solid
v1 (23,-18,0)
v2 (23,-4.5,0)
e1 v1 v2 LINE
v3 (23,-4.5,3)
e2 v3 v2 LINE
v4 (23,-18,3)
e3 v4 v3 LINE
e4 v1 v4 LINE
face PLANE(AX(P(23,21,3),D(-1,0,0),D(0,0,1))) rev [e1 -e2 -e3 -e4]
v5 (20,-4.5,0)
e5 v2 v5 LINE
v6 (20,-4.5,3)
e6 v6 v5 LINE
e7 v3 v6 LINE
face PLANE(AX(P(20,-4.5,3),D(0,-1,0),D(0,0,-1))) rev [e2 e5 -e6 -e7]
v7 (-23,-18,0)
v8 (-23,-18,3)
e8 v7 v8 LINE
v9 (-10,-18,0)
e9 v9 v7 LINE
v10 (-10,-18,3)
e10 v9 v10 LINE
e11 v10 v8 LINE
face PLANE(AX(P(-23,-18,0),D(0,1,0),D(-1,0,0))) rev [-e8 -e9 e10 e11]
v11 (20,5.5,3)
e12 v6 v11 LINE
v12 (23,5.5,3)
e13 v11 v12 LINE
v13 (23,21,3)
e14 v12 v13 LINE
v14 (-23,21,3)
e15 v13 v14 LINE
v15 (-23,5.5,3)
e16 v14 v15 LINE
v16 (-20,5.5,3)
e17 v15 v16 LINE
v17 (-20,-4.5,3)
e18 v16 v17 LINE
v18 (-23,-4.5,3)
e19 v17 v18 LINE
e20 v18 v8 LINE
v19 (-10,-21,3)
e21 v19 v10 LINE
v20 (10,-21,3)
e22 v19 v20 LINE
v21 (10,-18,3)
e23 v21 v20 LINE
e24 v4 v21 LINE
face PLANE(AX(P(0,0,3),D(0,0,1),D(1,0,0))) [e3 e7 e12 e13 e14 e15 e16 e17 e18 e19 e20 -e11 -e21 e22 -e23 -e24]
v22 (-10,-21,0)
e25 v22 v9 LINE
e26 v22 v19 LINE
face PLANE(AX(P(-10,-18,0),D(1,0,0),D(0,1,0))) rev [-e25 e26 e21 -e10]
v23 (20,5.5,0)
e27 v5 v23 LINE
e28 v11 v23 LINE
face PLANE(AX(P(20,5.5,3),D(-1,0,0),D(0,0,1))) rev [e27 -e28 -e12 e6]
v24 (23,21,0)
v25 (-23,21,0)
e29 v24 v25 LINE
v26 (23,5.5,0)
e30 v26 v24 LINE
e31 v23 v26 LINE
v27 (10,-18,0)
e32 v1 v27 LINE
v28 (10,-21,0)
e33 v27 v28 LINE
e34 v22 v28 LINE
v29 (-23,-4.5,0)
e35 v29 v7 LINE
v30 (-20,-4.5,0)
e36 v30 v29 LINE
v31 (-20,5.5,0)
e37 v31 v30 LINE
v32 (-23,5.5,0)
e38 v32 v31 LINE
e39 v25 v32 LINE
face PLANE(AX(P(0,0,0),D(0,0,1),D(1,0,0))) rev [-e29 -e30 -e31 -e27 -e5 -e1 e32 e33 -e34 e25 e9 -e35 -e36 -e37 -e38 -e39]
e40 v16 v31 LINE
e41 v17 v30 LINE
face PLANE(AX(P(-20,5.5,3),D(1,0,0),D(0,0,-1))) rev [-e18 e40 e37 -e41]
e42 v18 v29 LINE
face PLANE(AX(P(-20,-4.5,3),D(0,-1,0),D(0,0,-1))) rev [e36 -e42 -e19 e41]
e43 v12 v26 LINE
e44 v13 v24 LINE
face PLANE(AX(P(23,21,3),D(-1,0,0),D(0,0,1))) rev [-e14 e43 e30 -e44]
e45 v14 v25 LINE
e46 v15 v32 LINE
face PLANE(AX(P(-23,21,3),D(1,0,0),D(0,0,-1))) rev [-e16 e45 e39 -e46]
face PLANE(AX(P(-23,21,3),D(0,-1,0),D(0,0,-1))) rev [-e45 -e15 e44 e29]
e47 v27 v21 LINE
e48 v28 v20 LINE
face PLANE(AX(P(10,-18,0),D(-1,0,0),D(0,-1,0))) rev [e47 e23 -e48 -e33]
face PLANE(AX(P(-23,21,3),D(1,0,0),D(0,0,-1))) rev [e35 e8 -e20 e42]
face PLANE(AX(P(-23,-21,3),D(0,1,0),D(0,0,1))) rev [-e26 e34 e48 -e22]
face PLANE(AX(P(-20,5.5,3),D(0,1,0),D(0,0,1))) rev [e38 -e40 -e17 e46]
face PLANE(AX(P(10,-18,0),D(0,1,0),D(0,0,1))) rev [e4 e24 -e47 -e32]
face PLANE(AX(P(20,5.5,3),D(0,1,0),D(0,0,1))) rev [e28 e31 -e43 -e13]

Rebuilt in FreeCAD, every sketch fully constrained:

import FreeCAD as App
import Part
import Sketcher
from FreeCAD import Vector
Q = App.Units.Quantity

doc = App.newDocument("Part")
body = doc.addObject("PartDesign::Body", "Body")

sketch1 = body.newObject("Sketcher::SketchObject", "Sketch")
sketch1.AttachmentSupport = (doc.getObject("XY_Plane"), [""])
sketch1.MapMode = "FlatFace"
sketch1.addGeometry(Part.LineSegment(Vector(-23, 21, 0), Vector(-23, -21, 0)), False)
sketch1.addGeometry(Part.LineSegment(Vector(-23, -21, 0), Vector(23, -21, 0)), False)
sketch1.addGeometry(Part.LineSegment(Vector(23, -21, 0), Vector(23, 21, 0)), False)
sketch1.addGeometry(Part.LineSegment(Vector(23, 21, 0), Vector(-23, 21, 0)), False)
sketch1.addConstraint(Sketcher.Constraint("Coincident", 0, 2, 1, 1))
sketch1.addConstraint(Sketcher.Constraint("Coincident", 1, 2, 2, 1))
sketch1.addConstraint(Sketcher.Constraint("Coincident", 2, 2, 3, 1))
sketch1.addConstraint(Sketcher.Constraint("Coincident", 3, 2, 0, 1))
sketch1.addConstraint(Sketcher.Constraint("Vertical", 0))
sketch1.addConstraint(Sketcher.Constraint("Horizontal", 1))
sketch1.addConstraint(Sketcher.Constraint("Vertical", 2))
sketch1.addConstraint(Sketcher.Constraint("Horizontal", 3))
sketch1.addConstraint(Sketcher.Constraint("Symmetric", 0, 2, 2, 2, -1, 1))
sketch1.addConstraint(Sketcher.Constraint("DistanceX", 1, 1, 1, 2, Q("46 mm")))
sketch1.addConstraint(Sketcher.Constraint("DistanceY", 0, 2, 0, 1, Q("42 mm")))
pad1 = body.newObject("PartDesign::Pad", "Pad")
pad1.Profile = sketch1
pad1.Length = 3

sketch2 = body.newObject("Sketcher::SketchObject", "Sketch001")
sketch2.AttachmentSupport = (doc.getObject("XY_Plane"), [""])
sketch2.MapMode = "FlatFace"
sketch2.AttachmentOffset = App.Placement(Vector(0, 0, 3), App.Rotation())
sketch2.addGeometry(Part.LineSegment(Vector(-23, -18, 0), Vector(-23, -21, 0)), False)
sketch2.addGeometry(Part.LineSegment(Vector(-23, -21, 0), Vector(-10, -21, 0)), False)
sketch2.addGeometry(Part.LineSegment(Vector(-10, -21, 0), Vector(-10, -18, 0)), False)
sketch2.addGeometry(Part.LineSegment(Vector(-10, -18, 0), Vector(-23, -18, 0)), False)
sketch2.addGeometry(Part.LineSegment(Vector(10, -18, 0), Vector(10, -21, 0)), False)
sketch2.addGeometry(Part.LineSegment(Vector(10, -21, 0), Vector(23, -21, 0)), False)
sketch2.addGeometry(Part.LineSegment(Vector(23, -21, 0), Vector(23, -18, 0)), False)
sketch2.addGeometry(Part.LineSegment(Vector(23, -18, 0), Vector(10, -18, 0)), False)
sketch2.addConstraint(Sketcher.Constraint("Coincident", 0, 2, 1, 1))
sketch2.addConstraint(Sketcher.Constraint("Coincident", 1, 2, 2, 1))
sketch2.addConstraint(Sketcher.Constraint("Coincident", 2, 2, 3, 1))
sketch2.addConstraint(Sketcher.Constraint("Coincident", 3, 2, 0, 1))
sketch2.addConstraint(Sketcher.Constraint("Coincident", 4, 2, 5, 1))
sketch2.addConstraint(Sketcher.Constraint("Coincident", 5, 2, 6, 1))
sketch2.addConstraint(Sketcher.Constraint("Coincident", 6, 2, 7, 1))
sketch2.addConstraint(Sketcher.Constraint("Coincident", 7, 2, 4, 1))
sketch2.addConstraint(Sketcher.Constraint("Vertical", 0))
sketch2.addConstraint(Sketcher.Constraint("Horizontal", 1))
sketch2.addConstraint(Sketcher.Constraint("Vertical", 2))
sketch2.addConstraint(Sketcher.Constraint("Horizontal", 3))
sketch2.addConstraint(Sketcher.Constraint("Vertical", 4))
sketch2.addConstraint(Sketcher.Constraint("Horizontal", 5))
sketch2.addConstraint(Sketcher.Constraint("Vertical", 6))
sketch2.addConstraint(Sketcher.Constraint("Horizontal", 7))
sketch2.addConstraint(Sketcher.Constraint("Symmetric", 1, 2, 4, 2, -2))
sketch2.addConstraint(Sketcher.Constraint("Symmetric", 3, 2, 6, 2, -2))
sketch2.addConstraint(Sketcher.Constraint("DistanceX", 1, 1, 1, 2, Q("13 mm")))
sketch2.addConstraint(Sketcher.Constraint("DistanceY", 0, 2, 0, 1, Q("3 mm")))
sketch2.addConstraint(Sketcher.Constraint("DistanceX", 0, 2, -1, 1, Q("23 mm")))
sketch2.addConstraint(Sketcher.Constraint("DistanceY", 0, 2, -1, 1, Q("21 mm")))
pocket1 = body.newObject("PartDesign::Pocket", "Pocket")
pocket1.Profile = sketch2
pocket1.Type = "ThroughAll"

sketch3 = body.newObject("Sketcher::SketchObject", "Sketch002")
sketch3.AttachmentSupport = (doc.getObject("XY_Plane"), [""])
sketch3.MapMode = "FlatFace"
sketch3.addGeometry(Part.LineSegment(Vector(23, 5.5, 0), Vector(23, -4.5, 0)), False)
sketch3.addGeometry(Part.LineSegment(Vector(23, -4.5, 0), Vector(20, -4.5, 0)), False)
sketch3.addGeometry(Part.LineSegment(Vector(20, -4.5, 0), Vector(20, 5.5, 0)), False)
sketch3.addGeometry(Part.LineSegment(Vector(20, 5.5, 0), Vector(23, 5.5, 0)), False)
sketch3.addGeometry(Part.LineSegment(Vector(-20, 5.5, 0), Vector(-20, -4.5, 0)), False)
sketch3.addGeometry(Part.LineSegment(Vector(-20, -4.5, 0), Vector(-23, -4.5, 0)), False)
sketch3.addGeometry(Part.LineSegment(Vector(-23, -4.5, 0), Vector(-23, 5.5, 0)), False)
sketch3.addGeometry(Part.LineSegment(Vector(-23, 5.5, 0), Vector(-20, 5.5, 0)), False)
sketch3.addConstraint(Sketcher.Constraint("Coincident", 0, 2, 1, 1))
sketch3.addConstraint(Sketcher.Constraint("Coincident", 1, 2, 2, 1))
sketch3.addConstraint(Sketcher.Constraint("Coincident", 2, 2, 3, 1))
sketch3.addConstraint(Sketcher.Constraint("Coincident", 3, 2, 0, 1))
sketch3.addConstraint(Sketcher.Constraint("Coincident", 4, 2, 5, 1))
sketch3.addConstraint(Sketcher.Constraint("Coincident", 5, 2, 6, 1))
sketch3.addConstraint(Sketcher.Constraint("Coincident", 6, 2, 7, 1))
sketch3.addConstraint(Sketcher.Constraint("Coincident", 7, 2, 4, 1))
sketch3.addConstraint(Sketcher.Constraint("Vertical", 0))
sketch3.addConstraint(Sketcher.Constraint("Horizontal", 1))
sketch3.addConstraint(Sketcher.Constraint("Vertical", 2))
sketch3.addConstraint(Sketcher.Constraint("Horizontal", 3))
sketch3.addConstraint(Sketcher.Constraint("Vertical", 4))
sketch3.addConstraint(Sketcher.Constraint("Horizontal", 5))
sketch3.addConstraint(Sketcher.Constraint("Vertical", 6))
sketch3.addConstraint(Sketcher.Constraint("Horizontal", 7))
sketch3.addConstraint(Sketcher.Constraint("Symmetric", 1, 2, 4, 2, -2))
sketch3.addConstraint(Sketcher.Constraint("Symmetric", 3, 2, 6, 2, -2))
sketch3.addConstraint(Sketcher.Constraint("DistanceX", 1, 2, 1, 1, Q("3 mm")))
sketch3.addConstraint(Sketcher.Constraint("DistanceY", 0, 2, 0, 1, Q("10 mm")))
sketch3.addConstraint(Sketcher.Constraint("DistanceX", -1, 1, 0, 2, Q("23 mm")))
sketch3.addConstraint(Sketcher.Constraint("DistanceY", 0, 2, -1, 1, Q("4.5 mm")))
pocket2 = body.newObject("PartDesign::Pocket", "Pocket001")
pocket2.Profile = sketch3
pocket2.Type = "ThroughAll"
pocket2.Reversed = True

doc.recompute()
